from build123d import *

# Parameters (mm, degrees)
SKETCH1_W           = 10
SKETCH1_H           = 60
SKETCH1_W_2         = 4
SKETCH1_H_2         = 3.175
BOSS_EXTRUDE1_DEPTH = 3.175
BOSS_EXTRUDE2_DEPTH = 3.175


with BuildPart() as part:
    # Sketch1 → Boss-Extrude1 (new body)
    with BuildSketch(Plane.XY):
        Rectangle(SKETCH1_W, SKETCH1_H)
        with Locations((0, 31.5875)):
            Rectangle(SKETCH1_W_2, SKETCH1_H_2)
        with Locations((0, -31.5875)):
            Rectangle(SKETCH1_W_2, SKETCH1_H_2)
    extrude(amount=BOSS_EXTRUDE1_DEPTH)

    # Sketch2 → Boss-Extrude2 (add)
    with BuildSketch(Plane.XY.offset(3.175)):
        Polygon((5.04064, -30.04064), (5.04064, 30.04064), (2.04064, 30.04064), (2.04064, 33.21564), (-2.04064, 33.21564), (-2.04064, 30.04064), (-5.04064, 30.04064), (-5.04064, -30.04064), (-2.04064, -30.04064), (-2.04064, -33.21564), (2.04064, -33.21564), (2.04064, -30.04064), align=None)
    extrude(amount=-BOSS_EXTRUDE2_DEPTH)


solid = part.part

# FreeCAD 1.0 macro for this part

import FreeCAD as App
import Part
import Sketcher
Q = App.Units.Quantity

doc = App.newDocument("Part")
body = doc.addObject("PartDesign::Body", "Body")

# Sketch on XY plane
sketch1 = doc.addObject("Sketcher::SketchObject", "Sketch")
body.addObject(sketch1)
sketch1.AttachmentSupport = (doc.XY_Plane, [""])
sketch1.MapMode = "FlatFace"
sketch1.addGeometry([
    Part.LineSegment(App.Vector(-5, 30, 0), App.Vector(-5, -30, 0)),  # 0
    Part.LineSegment(App.Vector(-5, -30, 0), App.Vector(-2, -30, 0)),  # 1
    Part.LineSegment(App.Vector(-2, -30, 0), App.Vector(-2, -33.2, 0)),  # 2
    Part.LineSegment(App.Vector(-2, -33.2, 0), App.Vector(2, -33.2, 0)),  # 3
    Part.LineSegment(App.Vector(2, -33.2, 0), App.Vector(2, -30, 0)),  # 4
    Part.LineSegment(App.Vector(2, -30, 0), App.Vector(5, -30, 0)),  # 5
    Part.LineSegment(App.Vector(5, -30, 0), App.Vector(5, 30, 0)),  # 6
    Part.LineSegment(App.Vector(5, 30, 0), App.Vector(2, 30, 0)),  # 7
    Part.LineSegment(App.Vector(2, 30, 0), App.Vector(2, 33.2, 0)),  # 8
    Part.LineSegment(App.Vector(2, 33.2, 0), App.Vector(-2, 33.2, 0)),  # 9
    Part.LineSegment(App.Vector(-2, 33.2, 0), App.Vector(-2, 30, 0)),  # 10
    Part.LineSegment(App.Vector(-2, 30, 0), App.Vector(-5, 30, 0)),  # 11
], False)
sketch1.addConstraint([
    Sketcher.Constraint("Coincident", 0, 2, 1, 1),
    Sketcher.Constraint("Coincident", 1, 2, 2, 1),
    Sketcher.Constraint("Coincident", 2, 2, 3, 1),
    Sketcher.Constraint("Coincident", 3, 2, 4, 1),
    Sketcher.Constraint("Coincident", 4, 2, 5, 1),
    Sketcher.Constraint("Coincident", 5, 2, 6, 1),
    Sketcher.Constraint("Coincident", 6, 2, 7, 1),
    Sketcher.Constraint("Coincident", 7, 2, 8, 1),
    Sketcher.Constraint("Coincident", 8, 2, 9, 1),
    Sketcher.Constraint("Coincident", 9, 2, 10, 1),
    Sketcher.Constraint("Coincident", 10, 2, 11, 1),
    Sketcher.Constraint("Coincident", 11, 2, 0, 1),
    Sketcher.Constraint("Vertical", 0),
    Sketcher.Constraint("Horizontal", 1),
    Sketcher.Constraint("Vertical", 2),
    Sketcher.Constraint("Horizontal", 3),
    Sketcher.Constraint("Vertical", 4),
    Sketcher.Constraint("Horizontal", 5),
    Sketcher.Constraint("Vertical", 6),
    Sketcher.Constraint("Horizontal", 7),
    Sketcher.Constraint("Vertical", 8),
    Sketcher.Constraint("Horizontal", 9),
    Sketcher.Constraint("Vertical", 10),
    Sketcher.Constraint("Horizontal", 11),
    Sketcher.Constraint("Symmetric", 0, 2, 6, 2, -1, 1),
    Sketcher.Constraint("Symmetric", 2, 2, 8, 2, -1, 1),
    Sketcher.Constraint("Symmetric", 4, 2, 10, 2, -1, 1),
    Sketcher.Constraint("Symmetric", 1, 2, 4, 2, -2),
    Sketcher.Constraint("DistanceX", 1, 1, 1, 2, Q("3 mm")),
    Sketcher.Constraint("DistanceX", 3, 1, 3, 2, Q("4 mm")),
    Sketcher.Constraint("DistanceY", 0, 2, 0, 1, Q("60 mm")),
    Sketcher.Constraint("DistanceY", 2, 2, 2, 1, Q("3.175 mm")),
])
pad1 = doc.addObject("PartDesign::Pad", "Pad")
body.addObject(pad1)
pad1.Profile = sketch1
pad1.Length = 3.175

# Sketch on XY plane
sketch2 = doc.addObject("Sketcher::SketchObject", "Sketch001")
body.addObject(sketch2)
sketch2.AttachmentSupport = (doc.XY_Plane, [""])
sketch2.MapMode = "FlatFace"
sketch2.AttachmentOffset = App.Placement(App.Vector(0, 0, 3.175), App.Rotation())
sketch2.addGeometry([
    Part.LineSegment(App.Vector(5, -30, 0), App.Vector(5, 30, 0)),  # 0
    Part.LineSegment(App.Vector(5, 30, 0), App.Vector(2, 30, 0)),  # 1
    Part.LineSegment(App.Vector(2, 30, 0), App.Vector(2, 33.2, 0)),  # 2
    Part.LineSegment(App.Vector(2, 33.2, 0), App.Vector(-2, 33.2, 0)),  # 3
    Part.LineSegment(App.Vector(-2, 33.2, 0), App.Vector(-2, 30, 0)),  # 4
    Part.LineSegment(App.Vector(-2, 30, 0), App.Vector(-5, 30, 0)),  # 5
    Part.LineSegment(App.Vector(-5, 30, 0), App.Vector(-5, -30, 0)),  # 6
    Part.LineSegment(App.Vector(-5, -30, 0), App.Vector(-2, -30, 0)),  # 7
    Part.LineSegment(App.Vector(-2, -30, 0), App.Vector(-2, -33.2, 0)),  # 8
    Part.LineSegment(App.Vector(-2, -33.2, 0), App.Vector(2, -33.2, 0)),  # 9
    Part.LineSegment(App.Vector(2, -33.2, 0), App.Vector(2, -30, 0)),  # 10
    Part.LineSegment(App.Vector(2, -30, 0), App.Vector(5, -30, 0)),  # 11
], False)
sketch2.addConstraint([
    Sketcher.Constraint("Coincident", 0, 2, 1, 1),
    Sketcher.Constraint("Coincident", 1, 2, 2, 1),
    Sketcher.Constraint("Coincident", 2, 2, 3, 1),
    Sketcher.Constraint("Coincident", 3, 2, 4, 1),
    Sketcher.Constraint("Coincident", 4, 2, 5, 1),
    Sketcher.Constraint("Coincident", 5, 2, 6, 1),
    Sketcher.Constraint("Coincident", 6, 2, 7, 1),
    Sketcher.Constraint("Coincident", 7, 2, 8, 1),
    Sketcher.Constraint("Coincident", 8, 2, 9, 1),
    Sketcher.Constraint("Coincident", 9, 2, 10, 1),
    Sketcher.Constraint("Coincident", 10, 2, 11, 1),
    Sketcher.Constraint("Coincident", 11, 2, 0, 1),
    Sketcher.Constraint("Vertical", 0),
    Sketcher.Constraint("Horizontal", 1),
    Sketcher.Constraint("Vertical", 2),
    Sketcher.Constraint("Horizontal", 3),
    Sketcher.Constraint("Vertical", 4),
    Sketcher.Constraint("Horizontal", 5),
    Sketcher.Constraint("Vertical", 6),
    Sketcher.Constraint("Horizontal", 7),
    Sketcher.Constraint("Vertical", 8),
    Sketcher.Constraint("Horizontal", 9),
    Sketcher.Constraint("Vertical", 10),
    Sketcher.Constraint("Horizontal", 11),
    Sketcher.Constraint("Symmetric", 0, 2, 6, 2, -1, 1),
    Sketcher.Constraint("Symmetric", 2, 2, 8, 2, -1, 1),
    Sketcher.Constraint("Symmetric", 4, 2, 10, 2, -1, 1),
    Sketcher.Constraint("Symmetric", 1, 2, 4, 2, -2),
    Sketcher.Constraint("DistanceX", 1, 2, 1, 1, Q("3 mm")),
    Sketcher.Constraint("DistanceY", 2, 1, 2, 2, Q("3.175 mm")),
    Sketcher.Constraint("DistanceX", 3, 2, 3, 1, Q("4.08128 mm")),
    Sketcher.Constraint("DistanceY", 0, 1, 0, 2, Q("60.08128 mm")),
])
pad2 = doc.addObject("PartDesign::Pad", "Pad001")
body.addObject(pad2)
pad2.Profile = sketch2
pad2.Length = 3.175
pad2.Reversed = True

doc.recompute()
